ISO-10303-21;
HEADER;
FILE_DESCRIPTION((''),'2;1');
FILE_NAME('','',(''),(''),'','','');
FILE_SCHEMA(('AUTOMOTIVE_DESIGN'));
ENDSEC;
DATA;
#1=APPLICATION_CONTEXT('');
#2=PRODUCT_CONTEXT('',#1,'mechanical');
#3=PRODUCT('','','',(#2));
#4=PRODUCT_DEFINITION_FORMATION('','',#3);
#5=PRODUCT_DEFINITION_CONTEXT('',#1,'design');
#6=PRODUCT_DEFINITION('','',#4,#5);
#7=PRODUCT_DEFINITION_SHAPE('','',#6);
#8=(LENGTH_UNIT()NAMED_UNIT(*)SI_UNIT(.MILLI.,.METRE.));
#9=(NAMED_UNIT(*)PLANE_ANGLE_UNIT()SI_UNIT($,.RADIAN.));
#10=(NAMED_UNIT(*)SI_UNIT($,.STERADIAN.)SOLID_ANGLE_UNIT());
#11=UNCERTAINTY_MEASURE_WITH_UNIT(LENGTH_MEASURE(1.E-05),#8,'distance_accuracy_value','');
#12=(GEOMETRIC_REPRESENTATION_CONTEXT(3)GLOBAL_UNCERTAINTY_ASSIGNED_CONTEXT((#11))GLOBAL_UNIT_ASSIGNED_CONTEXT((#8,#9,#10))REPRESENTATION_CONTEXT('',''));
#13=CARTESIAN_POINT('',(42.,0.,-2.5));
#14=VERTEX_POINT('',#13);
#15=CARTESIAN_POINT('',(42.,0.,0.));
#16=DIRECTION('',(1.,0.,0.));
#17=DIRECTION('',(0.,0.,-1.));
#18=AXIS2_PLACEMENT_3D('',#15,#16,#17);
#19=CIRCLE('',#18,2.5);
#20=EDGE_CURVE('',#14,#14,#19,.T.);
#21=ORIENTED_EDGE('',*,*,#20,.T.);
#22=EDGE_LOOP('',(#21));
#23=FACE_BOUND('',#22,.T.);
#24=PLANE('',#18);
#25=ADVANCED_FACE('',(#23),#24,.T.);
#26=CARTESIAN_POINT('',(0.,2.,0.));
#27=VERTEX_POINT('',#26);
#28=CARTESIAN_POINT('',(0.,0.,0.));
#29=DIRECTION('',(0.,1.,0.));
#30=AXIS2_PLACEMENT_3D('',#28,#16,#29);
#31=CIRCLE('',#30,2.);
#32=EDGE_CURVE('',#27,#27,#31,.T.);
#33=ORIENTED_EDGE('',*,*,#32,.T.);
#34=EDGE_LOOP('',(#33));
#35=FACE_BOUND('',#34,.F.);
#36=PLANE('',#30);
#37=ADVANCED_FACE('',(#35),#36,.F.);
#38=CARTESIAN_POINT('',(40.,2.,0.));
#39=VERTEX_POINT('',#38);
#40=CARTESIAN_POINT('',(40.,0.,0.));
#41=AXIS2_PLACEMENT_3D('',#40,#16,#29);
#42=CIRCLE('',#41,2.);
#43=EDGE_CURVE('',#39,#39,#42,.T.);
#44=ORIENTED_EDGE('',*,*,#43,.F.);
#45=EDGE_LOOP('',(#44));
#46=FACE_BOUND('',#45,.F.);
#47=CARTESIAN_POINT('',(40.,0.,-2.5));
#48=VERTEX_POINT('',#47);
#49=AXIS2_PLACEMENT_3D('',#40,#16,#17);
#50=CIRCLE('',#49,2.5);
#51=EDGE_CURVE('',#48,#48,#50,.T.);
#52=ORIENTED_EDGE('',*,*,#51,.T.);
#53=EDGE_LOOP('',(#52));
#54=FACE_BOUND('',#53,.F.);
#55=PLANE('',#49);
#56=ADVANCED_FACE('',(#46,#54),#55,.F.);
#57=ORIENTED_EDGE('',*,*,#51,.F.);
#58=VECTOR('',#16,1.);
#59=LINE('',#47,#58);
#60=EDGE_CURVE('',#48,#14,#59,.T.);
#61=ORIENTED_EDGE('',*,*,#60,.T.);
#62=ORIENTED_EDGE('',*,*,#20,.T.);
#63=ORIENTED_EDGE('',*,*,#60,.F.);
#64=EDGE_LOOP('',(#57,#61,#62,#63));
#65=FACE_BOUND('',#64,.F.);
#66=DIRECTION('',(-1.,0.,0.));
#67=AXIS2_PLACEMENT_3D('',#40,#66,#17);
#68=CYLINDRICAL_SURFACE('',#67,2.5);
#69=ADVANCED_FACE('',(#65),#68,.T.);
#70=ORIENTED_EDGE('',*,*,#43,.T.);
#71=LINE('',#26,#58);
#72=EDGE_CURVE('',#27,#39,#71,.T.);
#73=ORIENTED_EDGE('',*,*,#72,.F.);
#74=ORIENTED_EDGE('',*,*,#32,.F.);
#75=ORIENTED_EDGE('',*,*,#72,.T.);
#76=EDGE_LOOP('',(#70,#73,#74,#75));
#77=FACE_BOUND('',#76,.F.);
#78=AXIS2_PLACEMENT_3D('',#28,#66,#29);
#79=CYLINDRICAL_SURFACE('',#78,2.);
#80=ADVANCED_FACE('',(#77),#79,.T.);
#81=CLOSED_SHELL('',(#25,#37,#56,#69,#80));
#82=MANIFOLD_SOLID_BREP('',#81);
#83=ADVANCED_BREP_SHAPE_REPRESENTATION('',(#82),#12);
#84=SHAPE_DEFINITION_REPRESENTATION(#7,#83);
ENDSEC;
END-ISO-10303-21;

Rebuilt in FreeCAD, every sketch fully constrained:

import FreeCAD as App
import Part
import Sketcher
from FreeCAD import Vector

doc = App.newDocument("Part")
body = doc.addObject("PartDesign::Body", "Body")

# Sketch on YZ plane
sketch1 = body.newObject("Sketcher::SketchObject", "Sketch")
sketch1.AttachmentSupport = (doc.getObject("YZ_Plane"), [""])
sketch1.MapMode = "FlatFace"
sketch1.addGeometry(Part.Circle(Vector(0, 0, 0), Vector(0, 0, 1), 2), False)
sketch1.addConstraint(Sketcher.Constraint("Coincident", 0, 3, -1, 1))
sketch1.addConstraint(Sketcher.Constraint("Diameter", 0, 4.0))
pad1 = body.newObject("PartDesign::Pad", "Pad")
pad1.Profile = sketch1
pad1.Length = 40

# Sketch on YZ plane
sketch2 = body.newObject("Sketcher::SketchObject", "Sketch001")
sketch2.AttachmentSupport = (doc.getObject("YZ_Plane"), [""])
sketch2.MapMode = "FlatFace"
sketch2.AttachmentOffset = App.Placement(Vector(0, 0, 40), App.Rotation())
sketch2.addGeometry(Part.Circle(Vector(0, 0, 0), Vector(0, 0, 1), 2.5), False)
sketch2.addConstraint(Sketcher.Constraint("Coincident", 0, 3, -1, 1))
sketch2.addConstraint(Sketcher.Constraint("Diameter", 0, 5.0))
pad2 = body.newObject("PartDesign::Pad", "Pad001")
pad2.Profile = sketch2
pad2.Length = 2

doc.recompute()
